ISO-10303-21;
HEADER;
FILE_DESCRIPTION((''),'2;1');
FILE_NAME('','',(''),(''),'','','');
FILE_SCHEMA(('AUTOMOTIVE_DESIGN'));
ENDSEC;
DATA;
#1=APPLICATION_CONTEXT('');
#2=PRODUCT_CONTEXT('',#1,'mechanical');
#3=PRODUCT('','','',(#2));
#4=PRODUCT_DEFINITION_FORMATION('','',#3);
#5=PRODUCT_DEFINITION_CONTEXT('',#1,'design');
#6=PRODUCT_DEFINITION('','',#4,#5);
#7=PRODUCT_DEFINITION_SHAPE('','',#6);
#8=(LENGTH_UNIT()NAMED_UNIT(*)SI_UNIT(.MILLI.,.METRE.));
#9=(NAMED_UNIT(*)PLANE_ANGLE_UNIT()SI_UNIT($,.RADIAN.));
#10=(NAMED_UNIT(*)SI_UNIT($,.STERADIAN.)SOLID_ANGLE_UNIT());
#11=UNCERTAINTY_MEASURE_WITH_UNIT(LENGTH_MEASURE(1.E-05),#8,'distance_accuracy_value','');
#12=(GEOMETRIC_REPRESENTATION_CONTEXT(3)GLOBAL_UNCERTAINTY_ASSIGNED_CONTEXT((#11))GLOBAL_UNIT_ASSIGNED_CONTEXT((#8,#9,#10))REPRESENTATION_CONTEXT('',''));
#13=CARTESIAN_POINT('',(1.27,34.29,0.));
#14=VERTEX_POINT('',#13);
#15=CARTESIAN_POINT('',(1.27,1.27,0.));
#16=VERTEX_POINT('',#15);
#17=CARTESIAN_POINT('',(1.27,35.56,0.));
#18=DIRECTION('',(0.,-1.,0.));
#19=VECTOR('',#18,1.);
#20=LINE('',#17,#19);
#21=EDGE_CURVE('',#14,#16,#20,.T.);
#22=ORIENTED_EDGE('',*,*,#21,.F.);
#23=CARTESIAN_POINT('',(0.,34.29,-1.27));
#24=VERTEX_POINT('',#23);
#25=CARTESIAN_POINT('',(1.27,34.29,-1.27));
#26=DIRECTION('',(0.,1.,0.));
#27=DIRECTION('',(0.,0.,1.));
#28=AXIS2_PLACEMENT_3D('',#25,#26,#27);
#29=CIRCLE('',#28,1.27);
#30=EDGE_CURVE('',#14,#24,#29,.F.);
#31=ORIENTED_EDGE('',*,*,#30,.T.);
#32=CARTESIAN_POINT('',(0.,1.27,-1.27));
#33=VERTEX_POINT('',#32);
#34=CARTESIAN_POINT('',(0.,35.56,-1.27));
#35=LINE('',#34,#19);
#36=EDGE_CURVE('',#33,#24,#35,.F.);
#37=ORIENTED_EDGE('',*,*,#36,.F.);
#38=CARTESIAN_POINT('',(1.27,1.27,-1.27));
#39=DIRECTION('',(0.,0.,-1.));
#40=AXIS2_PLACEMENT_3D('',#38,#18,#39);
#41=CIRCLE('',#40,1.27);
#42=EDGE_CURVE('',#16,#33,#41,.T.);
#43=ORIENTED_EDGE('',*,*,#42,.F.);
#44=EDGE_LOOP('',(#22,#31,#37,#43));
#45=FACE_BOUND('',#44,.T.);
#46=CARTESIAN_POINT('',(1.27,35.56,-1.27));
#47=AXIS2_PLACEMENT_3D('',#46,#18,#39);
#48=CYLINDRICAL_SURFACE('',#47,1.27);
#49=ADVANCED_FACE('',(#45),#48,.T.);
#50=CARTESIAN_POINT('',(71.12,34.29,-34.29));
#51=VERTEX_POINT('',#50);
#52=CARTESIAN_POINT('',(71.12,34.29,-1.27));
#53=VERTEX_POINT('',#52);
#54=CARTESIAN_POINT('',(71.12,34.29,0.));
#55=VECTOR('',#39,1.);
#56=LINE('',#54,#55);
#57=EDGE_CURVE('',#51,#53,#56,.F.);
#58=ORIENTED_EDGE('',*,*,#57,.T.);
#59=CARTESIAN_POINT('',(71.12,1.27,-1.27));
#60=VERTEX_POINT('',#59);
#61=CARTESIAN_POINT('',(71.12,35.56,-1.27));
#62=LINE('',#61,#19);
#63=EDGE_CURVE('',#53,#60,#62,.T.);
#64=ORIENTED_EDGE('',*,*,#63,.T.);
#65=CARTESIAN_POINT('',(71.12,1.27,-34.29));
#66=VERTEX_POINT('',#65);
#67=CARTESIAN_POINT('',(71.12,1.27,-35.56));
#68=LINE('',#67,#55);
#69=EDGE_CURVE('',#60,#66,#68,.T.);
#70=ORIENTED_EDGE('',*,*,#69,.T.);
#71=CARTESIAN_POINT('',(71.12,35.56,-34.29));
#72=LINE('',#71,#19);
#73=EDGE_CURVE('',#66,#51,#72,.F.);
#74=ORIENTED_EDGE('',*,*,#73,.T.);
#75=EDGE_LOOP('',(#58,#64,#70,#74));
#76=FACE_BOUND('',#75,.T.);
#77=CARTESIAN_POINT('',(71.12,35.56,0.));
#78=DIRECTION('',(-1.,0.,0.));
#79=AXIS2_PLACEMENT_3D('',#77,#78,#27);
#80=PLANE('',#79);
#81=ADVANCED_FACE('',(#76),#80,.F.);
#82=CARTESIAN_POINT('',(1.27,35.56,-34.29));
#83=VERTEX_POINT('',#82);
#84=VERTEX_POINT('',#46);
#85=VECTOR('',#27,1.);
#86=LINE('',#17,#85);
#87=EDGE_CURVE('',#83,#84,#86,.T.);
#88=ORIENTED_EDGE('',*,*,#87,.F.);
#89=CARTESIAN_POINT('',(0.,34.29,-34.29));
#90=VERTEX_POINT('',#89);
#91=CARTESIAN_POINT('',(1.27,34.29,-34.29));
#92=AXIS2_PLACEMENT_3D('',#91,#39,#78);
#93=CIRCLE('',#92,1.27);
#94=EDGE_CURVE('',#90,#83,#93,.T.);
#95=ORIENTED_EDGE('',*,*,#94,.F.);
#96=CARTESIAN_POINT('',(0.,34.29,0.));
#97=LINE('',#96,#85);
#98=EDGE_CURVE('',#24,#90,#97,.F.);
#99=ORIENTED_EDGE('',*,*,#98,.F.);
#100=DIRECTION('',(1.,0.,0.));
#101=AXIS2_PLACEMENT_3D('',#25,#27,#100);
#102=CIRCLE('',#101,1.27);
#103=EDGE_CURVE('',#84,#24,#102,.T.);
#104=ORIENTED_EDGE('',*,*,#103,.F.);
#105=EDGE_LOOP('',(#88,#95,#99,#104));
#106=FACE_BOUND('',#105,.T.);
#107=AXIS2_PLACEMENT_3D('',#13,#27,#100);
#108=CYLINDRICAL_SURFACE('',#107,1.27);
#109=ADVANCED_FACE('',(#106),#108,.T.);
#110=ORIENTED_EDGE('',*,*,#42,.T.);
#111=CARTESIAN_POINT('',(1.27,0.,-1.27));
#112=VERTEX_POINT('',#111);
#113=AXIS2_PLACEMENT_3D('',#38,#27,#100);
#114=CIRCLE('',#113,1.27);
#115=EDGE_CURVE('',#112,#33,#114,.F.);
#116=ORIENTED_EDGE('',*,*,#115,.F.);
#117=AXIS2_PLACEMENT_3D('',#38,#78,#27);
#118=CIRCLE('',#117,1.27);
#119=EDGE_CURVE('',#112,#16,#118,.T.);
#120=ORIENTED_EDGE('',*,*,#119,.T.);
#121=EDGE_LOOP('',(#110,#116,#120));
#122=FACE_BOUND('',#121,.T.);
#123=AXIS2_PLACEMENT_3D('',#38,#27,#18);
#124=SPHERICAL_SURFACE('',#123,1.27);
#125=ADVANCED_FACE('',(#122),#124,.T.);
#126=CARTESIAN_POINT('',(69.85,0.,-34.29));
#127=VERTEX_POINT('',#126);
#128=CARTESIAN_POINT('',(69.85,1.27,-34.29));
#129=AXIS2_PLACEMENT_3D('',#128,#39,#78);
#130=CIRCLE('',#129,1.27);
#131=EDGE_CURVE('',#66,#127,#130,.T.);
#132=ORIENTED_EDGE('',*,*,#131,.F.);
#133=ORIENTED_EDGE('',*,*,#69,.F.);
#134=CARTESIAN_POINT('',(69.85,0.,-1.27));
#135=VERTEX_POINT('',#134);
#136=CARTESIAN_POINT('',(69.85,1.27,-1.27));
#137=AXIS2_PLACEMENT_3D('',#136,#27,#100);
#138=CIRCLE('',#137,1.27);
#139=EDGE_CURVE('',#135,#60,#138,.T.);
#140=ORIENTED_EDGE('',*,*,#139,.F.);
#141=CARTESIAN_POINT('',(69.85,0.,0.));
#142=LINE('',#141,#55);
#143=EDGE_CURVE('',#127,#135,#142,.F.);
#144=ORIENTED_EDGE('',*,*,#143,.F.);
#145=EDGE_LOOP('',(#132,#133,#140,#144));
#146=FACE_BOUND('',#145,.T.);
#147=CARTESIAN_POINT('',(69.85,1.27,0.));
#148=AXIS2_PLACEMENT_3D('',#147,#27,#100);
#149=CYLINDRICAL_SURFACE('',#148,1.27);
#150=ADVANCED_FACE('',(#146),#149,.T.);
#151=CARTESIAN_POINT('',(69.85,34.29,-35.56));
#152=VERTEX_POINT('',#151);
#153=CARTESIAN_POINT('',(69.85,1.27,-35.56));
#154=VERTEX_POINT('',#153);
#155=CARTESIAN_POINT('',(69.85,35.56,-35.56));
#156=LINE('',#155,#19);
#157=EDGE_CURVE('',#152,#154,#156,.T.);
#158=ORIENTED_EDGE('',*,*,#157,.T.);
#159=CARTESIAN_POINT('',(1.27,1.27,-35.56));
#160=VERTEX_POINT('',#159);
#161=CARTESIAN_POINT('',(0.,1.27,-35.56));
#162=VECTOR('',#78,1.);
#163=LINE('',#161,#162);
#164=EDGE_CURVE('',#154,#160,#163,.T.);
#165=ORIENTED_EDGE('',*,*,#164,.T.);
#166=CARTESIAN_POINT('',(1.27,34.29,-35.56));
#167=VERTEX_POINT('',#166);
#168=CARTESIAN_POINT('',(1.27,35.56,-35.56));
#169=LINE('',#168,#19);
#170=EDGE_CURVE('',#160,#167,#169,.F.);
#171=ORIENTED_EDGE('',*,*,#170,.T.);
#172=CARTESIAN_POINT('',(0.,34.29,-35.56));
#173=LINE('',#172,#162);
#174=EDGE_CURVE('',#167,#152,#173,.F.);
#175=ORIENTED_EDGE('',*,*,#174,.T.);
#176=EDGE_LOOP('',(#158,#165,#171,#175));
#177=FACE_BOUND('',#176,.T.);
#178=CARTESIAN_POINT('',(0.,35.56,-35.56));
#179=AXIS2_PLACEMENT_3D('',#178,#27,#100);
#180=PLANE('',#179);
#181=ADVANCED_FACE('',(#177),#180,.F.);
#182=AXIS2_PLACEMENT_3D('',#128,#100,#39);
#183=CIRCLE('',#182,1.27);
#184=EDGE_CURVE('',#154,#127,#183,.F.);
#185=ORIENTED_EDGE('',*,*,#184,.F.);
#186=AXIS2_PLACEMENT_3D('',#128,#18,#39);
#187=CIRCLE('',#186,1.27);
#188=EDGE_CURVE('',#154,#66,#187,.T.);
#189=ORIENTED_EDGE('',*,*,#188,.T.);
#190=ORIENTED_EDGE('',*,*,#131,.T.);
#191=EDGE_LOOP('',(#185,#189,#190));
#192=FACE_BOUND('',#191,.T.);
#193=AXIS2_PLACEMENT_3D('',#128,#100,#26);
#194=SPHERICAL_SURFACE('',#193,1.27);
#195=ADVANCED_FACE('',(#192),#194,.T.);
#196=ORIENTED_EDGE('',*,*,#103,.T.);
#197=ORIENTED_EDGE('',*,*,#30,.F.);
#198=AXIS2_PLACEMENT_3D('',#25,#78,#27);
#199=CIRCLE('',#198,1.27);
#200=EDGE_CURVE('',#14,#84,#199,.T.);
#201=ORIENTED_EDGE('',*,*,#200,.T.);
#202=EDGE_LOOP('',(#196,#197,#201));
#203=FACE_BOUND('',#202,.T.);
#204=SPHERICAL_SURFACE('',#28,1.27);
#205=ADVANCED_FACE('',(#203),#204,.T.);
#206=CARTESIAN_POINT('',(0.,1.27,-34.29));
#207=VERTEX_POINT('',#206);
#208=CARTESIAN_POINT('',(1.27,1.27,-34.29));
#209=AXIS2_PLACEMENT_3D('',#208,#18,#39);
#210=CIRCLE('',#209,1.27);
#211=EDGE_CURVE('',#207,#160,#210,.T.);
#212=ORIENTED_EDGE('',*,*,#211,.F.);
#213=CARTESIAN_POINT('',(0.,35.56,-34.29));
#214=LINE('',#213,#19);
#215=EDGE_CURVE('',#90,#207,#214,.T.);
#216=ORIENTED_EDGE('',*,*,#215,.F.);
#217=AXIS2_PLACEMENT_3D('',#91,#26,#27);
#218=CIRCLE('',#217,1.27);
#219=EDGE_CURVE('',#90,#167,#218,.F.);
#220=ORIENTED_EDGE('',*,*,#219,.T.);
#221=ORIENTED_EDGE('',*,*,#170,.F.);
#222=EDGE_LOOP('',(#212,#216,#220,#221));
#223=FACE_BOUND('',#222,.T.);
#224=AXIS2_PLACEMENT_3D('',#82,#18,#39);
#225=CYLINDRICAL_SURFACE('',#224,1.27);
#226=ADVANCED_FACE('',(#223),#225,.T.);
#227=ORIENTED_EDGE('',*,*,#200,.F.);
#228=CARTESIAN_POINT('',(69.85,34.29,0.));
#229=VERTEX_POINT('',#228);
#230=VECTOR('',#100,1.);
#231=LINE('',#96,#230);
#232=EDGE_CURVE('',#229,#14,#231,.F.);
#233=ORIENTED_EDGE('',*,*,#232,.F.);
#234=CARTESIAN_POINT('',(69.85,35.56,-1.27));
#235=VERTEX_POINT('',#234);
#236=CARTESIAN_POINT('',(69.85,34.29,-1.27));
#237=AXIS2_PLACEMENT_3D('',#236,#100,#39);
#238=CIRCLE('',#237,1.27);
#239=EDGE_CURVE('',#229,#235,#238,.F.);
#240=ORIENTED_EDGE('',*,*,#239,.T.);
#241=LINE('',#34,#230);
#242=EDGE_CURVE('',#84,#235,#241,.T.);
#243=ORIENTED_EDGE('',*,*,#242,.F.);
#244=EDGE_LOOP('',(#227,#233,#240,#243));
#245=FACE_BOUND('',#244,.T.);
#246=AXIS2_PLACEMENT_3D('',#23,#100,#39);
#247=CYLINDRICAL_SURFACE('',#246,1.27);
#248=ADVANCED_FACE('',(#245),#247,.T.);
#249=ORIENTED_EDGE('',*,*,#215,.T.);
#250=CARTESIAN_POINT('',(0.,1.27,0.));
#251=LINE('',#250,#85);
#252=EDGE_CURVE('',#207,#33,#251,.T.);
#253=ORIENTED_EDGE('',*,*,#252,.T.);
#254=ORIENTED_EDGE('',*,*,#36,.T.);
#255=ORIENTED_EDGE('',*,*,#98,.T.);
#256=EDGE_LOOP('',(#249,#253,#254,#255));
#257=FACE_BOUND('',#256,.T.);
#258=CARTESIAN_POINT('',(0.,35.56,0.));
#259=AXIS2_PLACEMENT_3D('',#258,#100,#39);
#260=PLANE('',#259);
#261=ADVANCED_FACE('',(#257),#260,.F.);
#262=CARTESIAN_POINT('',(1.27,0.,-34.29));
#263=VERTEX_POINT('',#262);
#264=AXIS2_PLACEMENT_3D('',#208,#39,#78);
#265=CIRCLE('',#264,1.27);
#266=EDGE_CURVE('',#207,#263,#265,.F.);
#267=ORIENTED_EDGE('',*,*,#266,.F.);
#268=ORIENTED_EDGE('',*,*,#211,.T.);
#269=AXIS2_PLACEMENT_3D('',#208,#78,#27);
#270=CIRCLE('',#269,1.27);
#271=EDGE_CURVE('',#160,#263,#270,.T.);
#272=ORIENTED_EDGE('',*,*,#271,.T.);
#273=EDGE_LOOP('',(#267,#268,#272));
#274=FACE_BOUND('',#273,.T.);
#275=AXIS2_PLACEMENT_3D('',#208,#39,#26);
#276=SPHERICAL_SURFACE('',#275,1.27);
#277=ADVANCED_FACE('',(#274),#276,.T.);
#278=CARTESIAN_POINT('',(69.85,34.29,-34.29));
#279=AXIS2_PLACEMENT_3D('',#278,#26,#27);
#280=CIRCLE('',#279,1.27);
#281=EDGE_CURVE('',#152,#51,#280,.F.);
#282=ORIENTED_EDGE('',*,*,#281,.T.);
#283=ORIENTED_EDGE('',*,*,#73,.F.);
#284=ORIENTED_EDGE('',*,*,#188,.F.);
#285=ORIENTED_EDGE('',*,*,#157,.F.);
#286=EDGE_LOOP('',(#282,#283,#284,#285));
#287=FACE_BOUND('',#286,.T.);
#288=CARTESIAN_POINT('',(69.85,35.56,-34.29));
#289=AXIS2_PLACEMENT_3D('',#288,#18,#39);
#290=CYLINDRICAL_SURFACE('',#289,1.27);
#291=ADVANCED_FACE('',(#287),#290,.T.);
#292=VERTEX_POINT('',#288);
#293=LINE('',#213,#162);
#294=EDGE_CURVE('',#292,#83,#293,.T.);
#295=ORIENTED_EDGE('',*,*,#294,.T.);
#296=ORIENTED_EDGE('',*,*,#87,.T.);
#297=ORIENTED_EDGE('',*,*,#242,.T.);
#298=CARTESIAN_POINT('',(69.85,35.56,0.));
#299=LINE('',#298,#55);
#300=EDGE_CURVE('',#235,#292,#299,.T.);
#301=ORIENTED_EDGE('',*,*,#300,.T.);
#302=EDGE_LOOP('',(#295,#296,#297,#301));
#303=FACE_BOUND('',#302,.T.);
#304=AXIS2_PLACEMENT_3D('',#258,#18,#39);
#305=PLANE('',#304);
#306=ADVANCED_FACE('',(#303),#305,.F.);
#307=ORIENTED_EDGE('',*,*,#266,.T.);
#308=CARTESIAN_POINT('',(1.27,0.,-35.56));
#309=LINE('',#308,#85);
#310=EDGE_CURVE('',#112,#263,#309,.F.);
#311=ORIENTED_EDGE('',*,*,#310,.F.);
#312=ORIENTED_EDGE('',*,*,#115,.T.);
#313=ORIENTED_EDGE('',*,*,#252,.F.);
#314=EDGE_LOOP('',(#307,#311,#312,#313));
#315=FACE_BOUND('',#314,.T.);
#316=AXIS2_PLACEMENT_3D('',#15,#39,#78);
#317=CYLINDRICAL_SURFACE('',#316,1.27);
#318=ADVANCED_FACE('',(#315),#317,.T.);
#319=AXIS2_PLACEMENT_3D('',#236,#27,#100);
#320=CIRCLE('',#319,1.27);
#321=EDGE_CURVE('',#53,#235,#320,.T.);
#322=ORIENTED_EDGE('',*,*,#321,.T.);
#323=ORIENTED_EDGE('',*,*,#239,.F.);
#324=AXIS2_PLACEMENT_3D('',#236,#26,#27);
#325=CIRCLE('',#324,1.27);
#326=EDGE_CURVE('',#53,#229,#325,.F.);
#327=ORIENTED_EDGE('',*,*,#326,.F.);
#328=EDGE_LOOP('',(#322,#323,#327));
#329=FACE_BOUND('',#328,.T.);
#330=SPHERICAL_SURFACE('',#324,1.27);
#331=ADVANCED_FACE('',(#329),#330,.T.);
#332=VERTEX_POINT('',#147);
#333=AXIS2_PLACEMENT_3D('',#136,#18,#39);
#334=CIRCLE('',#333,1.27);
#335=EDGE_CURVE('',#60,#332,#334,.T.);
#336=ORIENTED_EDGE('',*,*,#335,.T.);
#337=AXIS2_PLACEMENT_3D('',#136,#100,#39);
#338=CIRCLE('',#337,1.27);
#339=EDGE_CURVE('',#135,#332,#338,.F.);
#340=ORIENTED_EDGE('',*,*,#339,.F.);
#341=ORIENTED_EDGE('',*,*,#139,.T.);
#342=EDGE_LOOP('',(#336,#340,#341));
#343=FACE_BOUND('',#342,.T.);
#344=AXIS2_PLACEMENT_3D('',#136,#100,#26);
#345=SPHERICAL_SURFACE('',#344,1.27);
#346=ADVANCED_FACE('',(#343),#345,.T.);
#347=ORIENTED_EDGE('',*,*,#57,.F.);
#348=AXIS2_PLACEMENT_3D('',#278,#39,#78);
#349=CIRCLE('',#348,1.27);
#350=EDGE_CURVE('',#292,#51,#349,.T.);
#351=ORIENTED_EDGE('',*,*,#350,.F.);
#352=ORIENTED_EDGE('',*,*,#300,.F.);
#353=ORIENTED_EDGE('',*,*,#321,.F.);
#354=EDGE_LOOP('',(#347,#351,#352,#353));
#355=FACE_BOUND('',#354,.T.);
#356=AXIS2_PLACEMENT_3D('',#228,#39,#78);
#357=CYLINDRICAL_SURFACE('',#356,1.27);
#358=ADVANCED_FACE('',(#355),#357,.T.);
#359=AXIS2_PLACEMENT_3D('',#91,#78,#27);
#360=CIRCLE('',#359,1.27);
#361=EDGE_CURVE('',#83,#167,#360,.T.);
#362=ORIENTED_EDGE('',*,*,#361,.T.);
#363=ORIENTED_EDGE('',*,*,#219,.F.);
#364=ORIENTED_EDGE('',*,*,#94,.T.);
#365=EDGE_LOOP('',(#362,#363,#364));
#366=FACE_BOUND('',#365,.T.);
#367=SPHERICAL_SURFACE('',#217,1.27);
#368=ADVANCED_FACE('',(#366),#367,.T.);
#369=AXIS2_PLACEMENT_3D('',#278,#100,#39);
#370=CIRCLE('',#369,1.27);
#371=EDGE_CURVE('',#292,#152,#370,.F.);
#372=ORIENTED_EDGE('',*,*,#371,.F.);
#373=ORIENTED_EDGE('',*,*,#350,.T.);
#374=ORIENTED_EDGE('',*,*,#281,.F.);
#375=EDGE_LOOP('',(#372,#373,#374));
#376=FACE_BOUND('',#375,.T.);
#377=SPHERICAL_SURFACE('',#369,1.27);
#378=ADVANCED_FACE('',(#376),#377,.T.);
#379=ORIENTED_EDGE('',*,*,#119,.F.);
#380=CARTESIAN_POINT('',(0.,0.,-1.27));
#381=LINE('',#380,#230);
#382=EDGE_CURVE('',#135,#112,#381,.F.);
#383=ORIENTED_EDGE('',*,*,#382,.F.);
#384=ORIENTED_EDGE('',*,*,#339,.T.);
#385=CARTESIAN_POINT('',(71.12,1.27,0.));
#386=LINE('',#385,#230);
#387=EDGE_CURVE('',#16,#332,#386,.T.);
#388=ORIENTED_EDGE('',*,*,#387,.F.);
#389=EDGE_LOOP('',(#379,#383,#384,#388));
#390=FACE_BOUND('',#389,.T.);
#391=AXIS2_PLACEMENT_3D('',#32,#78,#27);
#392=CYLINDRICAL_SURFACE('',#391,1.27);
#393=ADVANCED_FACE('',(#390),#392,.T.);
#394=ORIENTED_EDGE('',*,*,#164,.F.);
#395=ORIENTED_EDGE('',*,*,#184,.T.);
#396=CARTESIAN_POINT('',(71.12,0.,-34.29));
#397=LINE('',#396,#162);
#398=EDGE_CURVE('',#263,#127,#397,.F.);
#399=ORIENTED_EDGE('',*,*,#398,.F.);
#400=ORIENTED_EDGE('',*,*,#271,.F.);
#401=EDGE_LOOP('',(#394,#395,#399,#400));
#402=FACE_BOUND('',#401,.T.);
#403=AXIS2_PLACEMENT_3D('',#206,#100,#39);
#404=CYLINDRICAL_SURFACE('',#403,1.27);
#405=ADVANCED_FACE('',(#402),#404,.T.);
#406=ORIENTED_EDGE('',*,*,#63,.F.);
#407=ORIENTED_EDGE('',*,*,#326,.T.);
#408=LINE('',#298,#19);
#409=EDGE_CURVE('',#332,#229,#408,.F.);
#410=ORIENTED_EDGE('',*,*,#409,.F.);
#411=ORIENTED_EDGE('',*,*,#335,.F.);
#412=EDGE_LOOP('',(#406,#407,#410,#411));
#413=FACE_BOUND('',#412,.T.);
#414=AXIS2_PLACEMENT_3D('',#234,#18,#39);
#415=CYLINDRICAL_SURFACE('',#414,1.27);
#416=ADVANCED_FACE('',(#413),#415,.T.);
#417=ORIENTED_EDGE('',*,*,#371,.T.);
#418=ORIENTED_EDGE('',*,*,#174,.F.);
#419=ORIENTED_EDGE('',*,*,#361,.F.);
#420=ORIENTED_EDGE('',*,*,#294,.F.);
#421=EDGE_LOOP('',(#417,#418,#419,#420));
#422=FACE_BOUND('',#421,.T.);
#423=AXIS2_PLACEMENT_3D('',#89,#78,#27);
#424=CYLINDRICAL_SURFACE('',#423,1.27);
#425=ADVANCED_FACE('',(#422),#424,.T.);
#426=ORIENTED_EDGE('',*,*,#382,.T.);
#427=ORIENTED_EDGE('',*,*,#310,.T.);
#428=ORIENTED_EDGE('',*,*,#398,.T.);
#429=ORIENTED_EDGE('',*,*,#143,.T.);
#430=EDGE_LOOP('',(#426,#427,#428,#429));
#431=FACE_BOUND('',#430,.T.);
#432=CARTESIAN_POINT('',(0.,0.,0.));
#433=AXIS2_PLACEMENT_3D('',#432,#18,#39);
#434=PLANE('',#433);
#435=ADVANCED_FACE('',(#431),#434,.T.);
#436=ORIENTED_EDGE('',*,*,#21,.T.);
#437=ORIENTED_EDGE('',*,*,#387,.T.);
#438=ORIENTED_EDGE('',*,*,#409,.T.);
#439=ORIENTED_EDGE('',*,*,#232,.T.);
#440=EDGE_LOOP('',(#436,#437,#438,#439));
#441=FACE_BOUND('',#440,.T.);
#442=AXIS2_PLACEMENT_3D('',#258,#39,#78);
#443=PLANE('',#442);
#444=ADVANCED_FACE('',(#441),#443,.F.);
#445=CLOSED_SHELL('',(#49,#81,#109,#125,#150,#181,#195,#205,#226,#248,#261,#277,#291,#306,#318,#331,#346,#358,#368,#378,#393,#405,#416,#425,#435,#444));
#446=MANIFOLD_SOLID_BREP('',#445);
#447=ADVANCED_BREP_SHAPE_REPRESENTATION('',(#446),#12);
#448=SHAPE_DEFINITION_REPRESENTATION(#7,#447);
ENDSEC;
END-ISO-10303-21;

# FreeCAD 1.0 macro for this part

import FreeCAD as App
import Part
import Sketcher
Q = App.Units.Quantity


def add_polygon(sketch, points):
    """Adds a closed chain of lines whose ends are joined by coincident constraints."""
    first, n = sketch.GeometryCount, len(points)
    for a, b in zip(points, points[1:] + points[:1]):
        sketch.addGeometry(Part.LineSegment(App.Vector(*a, 0), App.Vector(*b, 0)), False)
    for i in range(n):
        sketch.addConstraint(Sketcher.Constraint("Coincident", first + i, 2, first + (i + 1) % n, 1))

doc = App.newDocument("Part")
body = doc.addObject("PartDesign::Body", "Body")

sketch1 = body.newObject("Sketcher::SketchObject", "Sketch")
sketch1.AttachmentSupport = (doc.getObject("XZ_Plane"), [""])
sketch1.MapMode = "FlatFace"
add_polygon(sketch1, [(0, -36), (0, 0), (71, 0), (71, -36)])
sketch1.addConstraint(Sketcher.Constraint("Vertical", 0))
sketch1.addConstraint(Sketcher.Constraint("Horizontal", 1))
sketch1.addConstraint(Sketcher.Constraint("Vertical", 2))
sketch1.addConstraint(Sketcher.Constraint("Horizontal", 3))
sketch1.addConstraint(Sketcher.Constraint("Coincident", 0, 2, -1, 1))
sketch1.addConstraint(Sketcher.Constraint("DistanceX", 1, 1, 1, 2, Q("2.8 in")))
sketch1.addConstraint(Sketcher.Constraint("DistanceY", 0, 1, 0, 2, Q("1.4 in")))
pad1 = body.newObject("PartDesign::Pad", "Pad")
pad1.Profile = sketch1
pad1.Length = Q("1.4 in")
pad1.Reversed = True
doc.recompute()

fillet = body.newObject("PartDesign::Fillet", "Fillet")
fillet.Base = (pad1, ["Edge1"])
fillet.UseAllEdges = True
fillet.Radius = Q("0.05 in")

doc.recompute()
